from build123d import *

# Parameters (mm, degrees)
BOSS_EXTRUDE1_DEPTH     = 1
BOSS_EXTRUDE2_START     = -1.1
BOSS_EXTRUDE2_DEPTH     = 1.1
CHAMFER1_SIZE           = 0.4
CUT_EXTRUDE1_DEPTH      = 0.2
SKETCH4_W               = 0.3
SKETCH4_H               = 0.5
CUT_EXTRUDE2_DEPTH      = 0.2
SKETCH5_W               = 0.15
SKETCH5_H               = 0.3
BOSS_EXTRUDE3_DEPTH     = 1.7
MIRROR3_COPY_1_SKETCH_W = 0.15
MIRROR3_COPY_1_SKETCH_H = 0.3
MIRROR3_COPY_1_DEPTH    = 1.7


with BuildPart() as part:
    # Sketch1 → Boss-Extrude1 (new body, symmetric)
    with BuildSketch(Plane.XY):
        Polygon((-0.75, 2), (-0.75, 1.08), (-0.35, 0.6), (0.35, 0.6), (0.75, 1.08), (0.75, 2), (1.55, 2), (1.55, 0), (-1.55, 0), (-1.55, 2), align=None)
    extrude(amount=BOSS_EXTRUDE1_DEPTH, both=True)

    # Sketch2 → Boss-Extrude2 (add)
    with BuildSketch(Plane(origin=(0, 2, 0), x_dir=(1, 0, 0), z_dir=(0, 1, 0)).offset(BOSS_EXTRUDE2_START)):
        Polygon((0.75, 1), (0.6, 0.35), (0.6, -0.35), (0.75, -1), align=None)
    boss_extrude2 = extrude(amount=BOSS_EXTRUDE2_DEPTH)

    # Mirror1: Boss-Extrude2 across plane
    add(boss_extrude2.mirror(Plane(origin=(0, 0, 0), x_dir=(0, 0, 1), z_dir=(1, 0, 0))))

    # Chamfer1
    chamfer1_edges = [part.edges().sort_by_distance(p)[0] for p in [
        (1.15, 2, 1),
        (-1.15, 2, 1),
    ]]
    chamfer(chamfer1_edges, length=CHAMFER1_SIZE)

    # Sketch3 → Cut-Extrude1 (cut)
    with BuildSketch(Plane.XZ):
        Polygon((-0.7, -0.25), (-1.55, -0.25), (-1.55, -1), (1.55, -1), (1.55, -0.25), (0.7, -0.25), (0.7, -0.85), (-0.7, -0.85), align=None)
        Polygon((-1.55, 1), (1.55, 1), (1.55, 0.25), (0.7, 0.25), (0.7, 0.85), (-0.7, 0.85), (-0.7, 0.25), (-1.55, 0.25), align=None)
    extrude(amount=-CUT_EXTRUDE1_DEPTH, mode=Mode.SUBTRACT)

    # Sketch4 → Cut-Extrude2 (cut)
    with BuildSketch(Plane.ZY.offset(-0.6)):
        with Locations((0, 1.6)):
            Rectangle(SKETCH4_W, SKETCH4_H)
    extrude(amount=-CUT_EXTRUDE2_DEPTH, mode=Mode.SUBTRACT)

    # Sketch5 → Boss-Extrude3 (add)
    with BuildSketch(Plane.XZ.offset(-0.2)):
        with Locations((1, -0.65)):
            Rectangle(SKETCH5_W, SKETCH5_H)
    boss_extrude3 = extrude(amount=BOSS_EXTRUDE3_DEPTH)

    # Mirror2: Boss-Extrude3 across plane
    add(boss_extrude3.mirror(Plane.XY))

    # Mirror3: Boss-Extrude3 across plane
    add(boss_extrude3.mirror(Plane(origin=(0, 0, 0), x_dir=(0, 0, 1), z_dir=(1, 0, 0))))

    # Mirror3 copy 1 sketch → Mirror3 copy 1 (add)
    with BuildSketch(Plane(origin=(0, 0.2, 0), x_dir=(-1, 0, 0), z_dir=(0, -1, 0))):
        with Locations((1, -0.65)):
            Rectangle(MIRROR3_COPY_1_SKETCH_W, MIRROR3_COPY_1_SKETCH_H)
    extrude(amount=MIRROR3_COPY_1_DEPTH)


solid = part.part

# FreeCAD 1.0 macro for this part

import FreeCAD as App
import Part
import Sketcher
Q = App.Units.Quantity


def edges_at(feature, points):
    """Names of the edges that pass closest to the given points."""
    edges = feature.Shape.Edges
    near = lambda p: min(range(len(edges)), key=lambda i: edges[i].distToShape(Part.Vertex(*p))[0])
    return sorted({f"Edge{near(p) + 1}" for p in points})

doc = App.newDocument("Part")
params = doc.addObject("Spreadsheet::Sheet", "Params")
for row, (alias, value) in enumerate([
    ("sketch1_height", "2 mm"),
    ("sketch1_width", "0.8 mm"),
    ("sketch1_width2", "3.1 mm"),
    ("sketch1_width3", "0.7 mm"),
    ("sketch1_height2", "0.92 mm"),
    ("pad1_length", "2 mm"),
    ("sketch2_height", "2 mm"),
    ("sketch2_height2", "0.7 mm"),
    ("pad2_length", "1.1 mm"),
    ("chamfer_size", "0.4 mm"),
    ("sketch3_width", "3.1 mm"),
    ("sketch3_width2", "1.4 mm"),
    ("sketch3_height", "0.6 mm"),
    ("sketch3_height2", "0.75 mm"),
    ("pocket1_length", "0.2 mm"),
    ("sketch4_width", "0.5 mm"),
    ("sketch4_height", "0.3 mm"),
    ("pocket2_length", "0.2 mm"),
    ("sketch5_height", "0.3 mm"),
    ("sketch5_width", "0.15 mm"),
    ("pad3_length", "1.7 mm"),
    ("sketch6_height", "0.3 mm"),
    ("sketch6_width", "0.15 mm"),
    ("pad4_length", "1.7 mm"),
], start=1):
    params.set(f"A{row}", alias)
    params.set(f"B{row}", "=" + value)
    params.setAlias(f"B{row}", alias)

body = doc.addObject("PartDesign::Body", "Body")

# Sketch on XY plane
sketch1 = doc.addObject("Sketcher::SketchObject", "Sketch")
body.addObject(sketch1)
sketch1.AttachmentSupport = (doc.XY_Plane, [""])
sketch1.MapMode = "FlatFace"
sketch1.addGeometry(Part.LineSegment(App.Vector(-0.8, 1.1, 0), App.Vector(-0.8, 2, 0)), False)
sketch1.addGeometry(Part.LineSegment(App.Vector(-0.8, 2, 0), App.Vector(-1.6, 2, 0)), False)
sketch1.addGeometry(Part.LineSegment(App.Vector(-1.6, 2, 0), App.Vector(-1.6, 0, 0)), False)
sketch1.addGeometry(Part.LineSegment(App.Vector(-1.6, 0, 0), App.Vector(1.6, 0, 0)), False)
sketch1.addGeometry(Part.LineSegment(App.Vector(1.6, 0, 0), App.Vector(1.6, 2, 0)), False)
sketch1.addGeometry(Part.LineSegment(App.Vector(1.6, 2, 0), App.Vector(0.8, 2, 0)), False)
sketch1.addGeometry(Part.LineSegment(App.Vector(0.8, 2, 0), App.Vector(0.8, 1.1, 0)), False)
sketch1.addGeometry(Part.LineSegment(App.Vector(0.8, 1.1, 0), App.Vector(0.3, 0.6, 0)), False)
sketch1.addGeometry(Part.LineSegment(App.Vector(0.3, 0.6, 0), App.Vector(-0.3, 0.6, 0)), False)
sketch1.addGeometry(Part.LineSegment(App.Vector(-0.3, 0.6, 0), App.Vector(-0.8, 1.1, 0)), False)
sketch1.addConstraint(Sketcher.Constraint("Coincident", 0, 2, 1, 1))
sketch1.addConstraint(Sketcher.Constraint("Coincident", 1, 2, 2, 1))
sketch1.addConstraint(Sketcher.Constraint("Coincident", 2, 2, 3, 1))
sketch1.addConstraint(Sketcher.Constraint("Coincident", 3, 2, 4, 1))
sketch1.addConstraint(Sketcher.Constraint("Coincident", 4, 2, 5, 1))
sketch1.addConstraint(Sketcher.Constraint("Coincident", 5, 2, 6, 1))
sketch1.addConstraint(Sketcher.Constraint("Coincident", 6, 2, 7, 1))
sketch1.addConstraint(Sketcher.Constraint("Coincident", 7, 2, 8, 1))
sketch1.addConstraint(Sketcher.Constraint("Coincident", 8, 2, 9, 1))
sketch1.addConstraint(Sketcher.Constraint("Coincident", 9, 2, 0, 1))
sketch1.addConstraint(Sketcher.Constraint("Vertical", 0))
sketch1.addConstraint(Sketcher.Constraint("Horizontal", 1))
sketch1.addConstraint(Sketcher.Constraint("Vertical", 2))
sketch1.addConstraint(Sketcher.Constraint("Horizontal", 3))
sketch1.addConstraint(Sketcher.Constraint("Vertical", 4))
sketch1.addConstraint(Sketcher.Constraint("Horizontal", 5))
sketch1.addConstraint(Sketcher.Constraint("Vertical", 6))
sketch1.addConstraint(Sketcher.Constraint("Horizontal", 8))
sketch1.addConstraint(Sketcher.Constraint("Symmetric", 2, 2, 3, 2, -1, 1))
sketch1.addConstraint(Sketcher.Constraint("Symmetric", 0, 2, 5, 2, -2))
sketch1.addConstraint(Sketcher.Constraint("Horizontal", 6, 2, 9, 2))
sketch1.addConstraint(Sketcher.Constraint("Equal", 7, 9))
sketch1.addConstraint(Sketcher.Constraint("DistanceY", 2, 2, 2, 1, Q("2 mm")))
sketch1.addConstraint(Sketcher.Constraint("DistanceX", 1, 2, 1, 1, Q("0.8 mm")))
sketch1.addConstraint(Sketcher.Constraint("DistanceX", 3, 1, 3, 2, Q("3.1 mm")))
sketch1.addConstraint(Sketcher.Constraint("DistanceX", 8, 2, 8, 1, Q("0.7 mm")))
sketch1.addConstraint(Sketcher.Constraint("DistanceY", 0, 1, 0, 2, Q("0.92 mm")))
sketch1.addConstraint(Sketcher.Constraint("DistanceY", -1, 1, 7, 2, Q("0.6 mm")))
sketch1.setExpression("Constraints[22]", "Params.sketch1_height")
sketch1.setExpression("Constraints[23]", "Params.sketch1_width")
sketch1.setExpression("Constraints[24]", "Params.sketch1_width2")
sketch1.setExpression("Constraints[25]", "Params.sketch1_width3")
sketch1.setExpression("Constraints[26]", "Params.sketch1_height2")
pad1 = doc.addObject("PartDesign::Pad", "Pad")
body.addObject(pad1)
pad1.Profile = sketch1
pad1.setExpression("Length", "Params.pad1_length")
pad1.Midplane = True

# Sketch on XZ plane
sketch2 = doc.addObject("Sketcher::SketchObject", "Sketch001")
body.addObject(sketch2)
sketch2.AttachmentSupport = (doc.XZ_Plane, [""])
sketch2.MapMode = "FlatFace"
sketch2.AttachmentOffset = App.Placement(App.Vector(0, 0, -0.9), App.Rotation())
sketch2.addGeometry(Part.LineSegment(App.Vector(0.8, -1, 0), App.Vector(0.6, -0.3, 0)), False)
sketch2.addGeometry(Part.LineSegment(App.Vector(0.6, -0.3, 0), App.Vector(0.6, 0.3, 0)), False)
sketch2.addGeometry(Part.LineSegment(App.Vector(0.6, 0.3, 0), App.Vector(0.8, 1, 0)), False)
sketch2.addGeometry(Part.LineSegment(App.Vector(0.8, 1, 0), App.Vector(0.8, -1, 0)), False)
sketch2.addConstraint(Sketcher.Constraint("Coincident", 0, 2, 1, 1))
sketch2.addConstraint(Sketcher.Constraint("Coincident", 1, 2, 2, 1))
sketch2.addConstraint(Sketcher.Constraint("Coincident", 2, 2, 3, 1))
sketch2.addConstraint(Sketcher.Constraint("Coincident", 3, 2, 0, 1))
sketch2.addConstraint(Sketcher.Constraint("Vertical", 1))
sketch2.addConstraint(Sketcher.Constraint("Vertical", 3))
sketch2.addConstraint(Sketcher.Constraint("Equal", 0, 2))
sketch2.addConstraint(Sketcher.Constraint("DistanceY", 3, 2, 3, 1, Q("2 mm")))
sketch2.addConstraint(Sketcher.Constraint("DistanceY", 1, 1, 1, 2, Q("0.7 mm")))
sketch2.addConstraint(Sketcher.Constraint("DistanceY", -1, 1, 2, 2, Q("1 mm")))
sketch2.addConstraint(Sketcher.Constraint("DistanceX", -1, 1, 0, 2, Q("0.6 mm")))
sketch2.addConstraint(Sketcher.Constraint("DistanceX", -1, 1, 2, 2, Q("0.75 mm")))
sketch2.setExpression("Constraints[7]", "Params.sketch2_height")
sketch2.setExpression("Constraints[8]", "Params.sketch2_height2")
pad2 = doc.addObject("PartDesign::Pad", "Pad001")
body.addObject(pad2)
pad2.Profile = sketch2
pad2.setExpression("Length", "Params.pad2_length")
pad2.Reversed = True
doc.recompute()

mirrored = doc.addObject("PartDesign::Mirrored", "Mirrored")
body.addObject(mirrored)
mirrored.Originals = [pad2]
mirrored.MirrorPlane = (doc.YZ_Plane, [""])
body.Tip = mirrored
doc.recompute()

chamfer = doc.addObject("PartDesign::Chamfer", "Chamfer")
body.addObject(chamfer)
chamfer.Base = (mirrored, edges_at(mirrored, [(1.15, 2, 1), (-1.15, 2, 1)]))
chamfer.setExpression("Size", "Params.chamfer_size")

# Sketch on XZ plane
sketch3 = doc.addObject("Sketcher::SketchObject", "Sketch002")
body.addObject(sketch3)
sketch3.AttachmentSupport = (doc.XZ_Plane, [""])
sketch3.MapMode = "FlatFace"
sketch3.addGeometry(Part.LineSegment(App.Vector(-0.7, -0.2, 0), App.Vector(-1.6, -0.2, 0)), False)
sketch3.addGeometry(Part.LineSegment(App.Vector(-1.6, -0.2, 0), App.Vector(-1.6, -1, 0)), False)
sketch3.addGeometry(Part.LineSegment(App.Vector(-1.6, -1, 0), App.Vector(1.6, -1, 0)), False)
sketch3.addGeometry(Part.LineSegment(App.Vector(1.6, -1, 0), App.Vector(1.6, -0.2, 0)), False)
sketch3.addGeometry(Part.LineSegment(App.Vector(1.6, -0.2, 0), App.Vector(0.7, -0.2, 0)), False)
sketch3.addGeometry(Part.LineSegment(App.Vector(0.7, -0.2, 0), App.Vector(0.7, -0.8, 0)), False)
sketch3.addGeometry(Part.LineSegment(App.Vector(0.7, -0.8, 0), App.Vector(-0.7, -0.8, 0)), False)
sketch3.addGeometry(Part.LineSegment(App.Vector(-0.7, -0.8, 0), App.Vector(-0.7, -0.2, 0)), False)
sketch3.addGeometry(Part.LineSegment(App.Vector(1.6, 1, 0), App.Vector(-1.6, 1, 0)), False)
sketch3.addGeometry(Part.LineSegment(App.Vector(-1.6, 1, 0), App.Vector(-1.6, 0.2, 0)), False)
sketch3.addGeometry(Part.LineSegment(App.Vector(-1.6, 0.2, 0), App.Vector(-0.7, 0.2, 0)), False)
sketch3.addGeometry(Part.LineSegment(App.Vector(-0.7, 0.2, 0), App.Vector(-0.7, 0.8, 0)), False)
sketch3.addGeometry(Part.LineSegment(App.Vector(-0.7, 0.8, 0), App.Vector(0.7, 0.8, 0)), False)
sketch3.addGeometry(Part.LineSegment(App.Vector(0.7, 0.8, 0), App.Vector(0.7, 0.2, 0)), False)
sketch3.addGeometry(Part.LineSegment(App.Vector(0.7, 0.2, 0), App.Vector(1.6, 0.2, 0)), False)
sketch3.addGeometry(Part.LineSegment(App.Vector(1.6, 0.2, 0), App.Vector(1.6, 1, 0)), False)
sketch3.addConstraint(Sketcher.Constraint("Coincident", 0, 2, 1, 1))
sketch3.addConstraint(Sketcher.Constraint("Coincident", 1, 2, 2, 1))
sketch3.addConstraint(Sketcher.Constraint("Coincident", 2, 2, 3, 1))
sketch3.addConstraint(Sketcher.Constraint("Coincident", 3, 2, 4, 1))
sketch3.addConstraint(Sketcher.Constraint("Coincident", 4, 2, 5, 1))
sketch3.addConstraint(Sketcher.Constraint("Coincident", 5, 2, 6, 1))
sketch3.addConstraint(Sketcher.Constraint("Coincident", 6, 2, 7, 1))
sketch3.addConstraint(Sketcher.Constraint("Coincident", 7, 2, 0, 1))
sketch3.addConstraint(Sketcher.Constraint("Coincident", 8, 2, 9, 1))
sketch3.addConstraint(Sketcher.Constraint("Coincident", 9, 2, 10, 1))
sketch3.addConstraint(Sketcher.Constraint("Coincident", 10, 2, 11, 1))
sketch3.addConstraint(Sketcher.Constraint("Coincident", 11, 2, 12, 1))
sketch3.addConstraint(Sketcher.Constraint("Coincident", 12, 2, 13, 1))
sketch3.addConstraint(Sketcher.Constraint("Coincident", 13, 2, 14, 1))
sketch3.addConstraint(Sketcher.Constraint("Coincident", 14, 2, 15, 1))
sketch3.addConstraint(Sketcher.Constraint("Coincident", 15, 2, 8, 1))
sketch3.addConstraint(Sketcher.Constraint("Horizontal", 0))
sketch3.addConstraint(Sketcher.Constraint("Vertical", 1))
sketch3.addConstraint(Sketcher.Constraint("Horizontal", 2))
sketch3.addConstraint(Sketcher.Constraint("Vertical", 3))
sketch3.addConstraint(Sketcher.Constraint("Horizontal", 4))
sketch3.addConstraint(Sketcher.Constraint("Vertical", 5))
sketch3.addConstraint(Sketcher.Constraint("Horizontal", 6))
sketch3.addConstraint(Sketcher.Constraint("Vertical", 7))
sketch3.addConstraint(Sketcher.Constraint("Horizontal", 8))
sketch3.addConstraint(Sketcher.Constraint("Vertical", 9))
sketch3.addConstraint(Sketcher.Constraint("Horizontal", 10))
sketch3.addConstraint(Sketcher.Constraint("Vertical", 11))
sketch3.addConstraint(Sketcher.Constraint("Horizontal", 12))
sketch3.addConstraint(Sketcher.Constraint("Vertical", 13))
sketch3.addConstraint(Sketcher.Constraint("Horizontal", 14))
sketch3.addConstraint(Sketcher.Constraint("Vertical", 15))
sketch3.addConstraint(Sketcher.Constraint("Symmetric", 2, 2, 8, 2, -1, 1))
sketch3.addConstraint(Sketcher.Constraint("Symmetric", 4, 2, 10, 2, -1, 1))
sketch3.addConstraint(Sketcher.Constraint("Symmetric", 6, 2, 12, 2, -1, 1))
sketch3.addConstraint(Sketcher.Constraint("Symmetric", 0, 2, 14, 2, -1, 1))
sketch3.addConstraint(Sketcher.Constraint("Symmetric", 0, 2, 3, 2, -2))
sketch3.addConstraint(Sketcher.Constraint("Vertical", 7, 2, 10, 2))
sketch3.addConstraint(Sketcher.Constraint("DistanceX", 2, 1, 2, 2, Q("3.1 mm")))
sketch3.addConstraint(Sketcher.Constraint("DistanceX", 6, 2, 6, 1, Q("1.4 mm")))
sketch3.addConstraint(Sketcher.Constraint("DistanceY", 5, 2, 5, 1, Q("0.6 mm")))
sketch3.addConstraint(Sketcher.Constraint("DistanceY", 1, 2, -1, 1, Q("1 mm")))
sketch3.addConstraint(Sketcher.Constraint("DistanceY", 1, 2, 1, 1, Q("0.75 mm")))
sketch3.setExpression("Constraints[38]", "Params.sketch3_width")
sketch3.setExpression("Constraints[39]", "Params.sketch3_width2")
sketch3.setExpression("Constraints[40]", "Params.sketch3_height")
sketch3.setExpression("Constraints[42]", "Params.sketch3_height2")
pocket1 = doc.addObject("PartDesign::Pocket", "Pocket")
body.addObject(pocket1)
pocket1.Profile = sketch3
pocket1.setExpression("Length", "Params.pocket1_length")

# Sketch on YZ plane
sketch4 = doc.addObject("Sketcher::SketchObject", "Sketch003")
body.addObject(sketch4)
sketch4.AttachmentSupport = (doc.YZ_Plane, [""])
sketch4.MapMode = "FlatFace"
sketch4.AttachmentOffset = App.Placement(App.Vector(0, 0, 0.6), App.Rotation())
sketch4.addGeometry(Part.LineSegment(App.Vector(1.85, -0.15, 0), App.Vector(1.35, -0.15, 0)), False)
sketch4.addGeometry(Part.LineSegment(App.Vector(1.35, -0.15, 0), App.Vector(1.35, 0.15, 0)), False)
sketch4.addGeometry(Part.LineSegment(App.Vector(1.35, 0.15, 0), App.Vector(1.85, 0.15, 0)), False)
sketch4.addGeometry(Part.LineSegment(App.Vector(1.85, 0.15, 0), App.Vector(1.85, -0.15, 0)), False)
sketch4.addConstraint(Sketcher.Constraint("Coincident", 0, 2, 1, 1))
sketch4.addConstraint(Sketcher.Constraint("Coincident", 1, 2, 2, 1))
sketch4.addConstraint(Sketcher.Constraint("Coincident", 2, 2, 3, 1))
sketch4.addConstraint(Sketcher.Constraint("Coincident", 3, 2, 0, 1))
sketch4.addConstraint(Sketcher.Constraint("Horizontal", 0))
sketch4.addConstraint(Sketcher.Constraint("Vertical", 1))
sketch4.addConstraint(Sketcher.Constraint("Horizontal", 2))
sketch4.addConstraint(Sketcher.Constraint("Vertical", 3))
sketch4.addConstraint(Sketcher.Constraint("DistanceX", 0, 2, 0, 1, Q("0.5 mm")))
sketch4.addConstraint(Sketcher.Constraint("DistanceY", 1, 1, 1, 2, Q("0.3 mm")))
sketch4.addConstraint(Sketcher.Constraint("DistanceX", -1, 1, 0, 2, Q("1.35 mm")))
sketch4.addConstraint(Sketcher.Constraint("DistanceY", 0, 2, -1, 1, Q("0.15 mm")))
sketch4.setExpression("Constraints[8]", "Params.sketch4_width")
sketch4.setExpression("Constraints[9]", "Params.sketch4_height")
pocket2 = doc.addObject("PartDesign::Pocket", "Pocket001")
body.addObject(pocket2)
pocket2.Profile = sketch4
pocket2.setExpression("Length", "Params.pocket2_length")
pocket2.Reversed = True

# Sketch on XZ plane
sketch5 = doc.addObject("Sketcher::SketchObject", "Sketch004")
body.addObject(sketch5)
sketch5.AttachmentSupport = (doc.XZ_Plane, [""])
sketch5.MapMode = "FlatFace"
sketch5.AttachmentOffset = App.Placement(App.Vector(0, 0, -0.2), App.Rotation())
sketch5.addGeometry(Part.LineSegment(App.Vector(0.93, -0.5, 0), App.Vector(0.93, -0.8, 0)), False)
sketch5.addGeometry(Part.LineSegment(App.Vector(0.93, -0.8, 0), App.Vector(1.07, -0.8, 0)), False)
sketch5.addGeometry(Part.LineSegment(App.Vector(1.07, -0.8, 0), App.Vector(1.07, -0.5, 0)), False)
sketch5.addGeometry(Part.LineSegment(App.Vector(1.07, -0.5, 0), App.Vector(0.93, -0.5, 0)), False)
sketch5.addConstraint(Sketcher.Constraint("Coincident", 0, 2, 1, 1))
sketch5.addConstraint(Sketcher.Constraint("Coincident", 1, 2, 2, 1))
sketch5.addConstraint(Sketcher.Constraint("Coincident", 2, 2, 3, 1))
sketch5.addConstraint(Sketcher.Constraint("Coincident", 3, 2, 0, 1))
sketch5.addConstraint(Sketcher.Constraint("Vertical", 0))
sketch5.addConstraint(Sketcher.Constraint("Horizontal", 1))
sketch5.addConstraint(Sketcher.Constraint("Vertical", 2))
sketch5.addConstraint(Sketcher.Constraint("Horizontal", 3))
sketch5.addConstraint(Sketcher.Constraint("DistanceY", 0, 2, 0, 1, Q("0.3 mm")))
sketch5.addConstraint(Sketcher.Constraint("DistanceX", 1, 1, 1, 2, Q("0.15 mm")))
sketch5.addConstraint(Sketcher.Constraint("DistanceY", 0, 2, -1, 1, Q("0.8 mm")))
sketch5.addConstraint(Sketcher.Constraint("DistanceX", -1, 1, 0, 2, Q("0.925 mm")))
sketch5.setExpression("Constraints[8]", "Params.sketch5_height")
sketch5.setExpression("Constraints[9]", "Params.sketch5_width")
pad3 = doc.addObject("PartDesign::Pad", "Pad002")
body.addObject(pad3)
pad3.Profile = sketch5
pad3.setExpression("Length", "Params.pad3_length")
doc.recompute()

mirrored2 = doc.addObject("PartDesign::Mirrored", "Mirrored001")
body.addObject(mirrored2)
mirrored2.Originals = [pad3]
mirrored2.MirrorPlane = (doc.XY_Plane, [""])
body.Tip = mirrored2
doc.recompute()

mirrored3 = doc.addObject("PartDesign::Mirrored", "Mirrored002")
body.addObject(mirrored3)
mirrored3.Originals = [pad3]
mirrored3.MirrorPlane = (doc.YZ_Plane, [""])
body.Tip = mirrored3

# Sketch on XZ plane
sketch6 = doc.addObject("Sketcher::SketchObject", "Sketch005")
body.addObject(sketch6)
sketch6.AttachmentSupport = (doc.XZ_Plane, [""])
sketch6.MapMode = "FlatFace"
sketch6.AttachmentOffset = App.Placement(App.Vector(0, 0, -0.2), App.Rotation())
sketch6.addGeometry(Part.LineSegment(App.Vector(-0.93, 0.5, 0), App.Vector(-0.93, 0.8, 0)), False)
sketch6.addGeometry(Part.LineSegment(App.Vector(-0.93, 0.8, 0), App.Vector(-1.07, 0.8, 0)), False)
sketch6.addGeometry(Part.LineSegment(App.Vector(-1.07, 0.8, 0), App.Vector(-1.07, 0.5, 0)), False)
sketch6.addGeometry(Part.LineSegment(App.Vector(-1.07, 0.5, 0), App.Vector(-0.93, 0.5, 0)), False)
sketch6.addConstraint(Sketcher.Constraint("Coincident", 0, 2, 1, 1))
sketch6.addConstraint(Sketcher.Constraint("Coincident", 1, 2, 2, 1))
sketch6.addConstraint(Sketcher.Constraint("Coincident", 2, 2, 3, 1))
sketch6.addConstraint(Sketcher.Constraint("Coincident", 3, 2, 0, 1))
sketch6.addConstraint(Sketcher.Constraint("Vertical", 0))
sketch6.addConstraint(Sketcher.Constraint("Horizontal", 1))
sketch6.addConstraint(Sketcher.Constraint("Vertical", 2))
sketch6.addConstraint(Sketcher.Constraint("Horizontal", 3))
sketch6.addConstraint(Sketcher.Constraint("DistanceY", 0, 1, 0, 2, Q("0.3 mm")))
sketch6.addConstraint(Sketcher.Constraint("DistanceX", 1, 2, 1, 1, Q("0.15 mm")))
sketch6.addConstraint(Sketcher.Constraint("DistanceY", -1, 1, 0, 2, Q("0.8 mm")))
sketch6.addConstraint(Sketcher.Constraint("DistanceX", 0, 2, -1, 1, Q("0.925 mm")))
sketch6.setExpression("Constraints[8]", "Params.sketch6_height")
sketch6.setExpression("Constraints[9]", "Params.sketch6_width")
pad4 = doc.addObject("PartDesign::Pad", "Pad003")
body.addObject(pad4)
pad4.Profile = sketch6
pad4.setExpression("Length", "Params.pad4_length")

doc.recompute()
